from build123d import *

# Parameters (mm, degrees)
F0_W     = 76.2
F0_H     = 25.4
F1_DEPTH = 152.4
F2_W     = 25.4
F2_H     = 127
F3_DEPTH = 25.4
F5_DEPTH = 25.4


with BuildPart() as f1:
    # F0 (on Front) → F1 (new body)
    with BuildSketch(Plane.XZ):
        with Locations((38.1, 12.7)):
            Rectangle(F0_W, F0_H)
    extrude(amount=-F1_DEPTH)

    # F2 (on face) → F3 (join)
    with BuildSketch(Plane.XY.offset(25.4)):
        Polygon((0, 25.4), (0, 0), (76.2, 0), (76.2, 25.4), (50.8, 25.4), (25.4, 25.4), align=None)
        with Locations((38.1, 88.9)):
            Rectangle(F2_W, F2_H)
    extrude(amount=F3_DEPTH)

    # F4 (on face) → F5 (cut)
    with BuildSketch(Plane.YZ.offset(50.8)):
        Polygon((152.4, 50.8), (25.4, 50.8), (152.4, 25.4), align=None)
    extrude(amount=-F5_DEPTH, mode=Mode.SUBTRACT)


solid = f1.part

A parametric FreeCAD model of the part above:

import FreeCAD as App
import Part
import Sketcher

V = App.Vector
Q = App.Units.Quantity


def add_polygon(sketch, points):
    """Adds a closed chain of lines whose ends are joined by coincident constraints."""
    first, n = sketch.GeometryCount, len(points)
    for a, b in zip(points, points[1:] + points[:1]):
        sketch.addGeometry(Part.LineSegment(App.Vector(*a, 0), App.Vector(*b, 0)), False)
    for i in range(n):
        sketch.addConstraint(Sketcher.Constraint("Coincident", first + i, 2, first + (i + 1) % n, 1))

doc = App.newDocument("Part")
params = doc.addObject("Spreadsheet::Sheet", "Params")
for row, (alias, value) in enumerate([
    ("sketch1_width", "3 in"),
    ("sketch1_height", "1 in"),
    ("pad1_length", "6 in"),
    ("sketch2_width", "3 in"),
    ("sketch2_height", "5 in"),
    ("pad2_length", "1 in"),
    ("sketch3_width", "5 in"),
    ("sketch3_height", "1 in"),
    ("pocket1_length", "1 in"),
], start=1):
    params.set(f"A{row}", alias)
    params.set(f"B{row}", "=" + value)
    params.setAlias(f"B{row}", alias)

body = doc.addObject("PartDesign::Body", "Body")

# Sketch on XZ plane
sketch1 = body.newObject("Sketcher::SketchObject", "Sketch")
sketch1.AttachmentSupport = (doc.getObject("XZ_Plane"), [""])
sketch1.MapMode = "FlatFace"
add_polygon(sketch1, [(0, 25.4), (0, 0), (76.2, 0), (76.2, 25.4)])  # lines 0-3
sketch1.addConstraint([
    Sketcher.Constraint("Vertical", 0),
    Sketcher.Constraint("Horizontal", 1),
    Sketcher.Constraint("Vertical", 2),
    Sketcher.Constraint("Horizontal", 3),
    Sketcher.Constraint("Coincident", 0, 2, -1, 1),
    Sketcher.Constraint("DistanceX", 1, 1, 1, 2, Q("3 in")),
    Sketcher.Constraint("DistanceY", 0, 2, 0, 1, Q("1 in")),
])
sketch1.setExpression("Constraints[9]", "Params.sketch1_width")
sketch1.setExpression("Constraints[10]", "Params.sketch1_height")
pad1 = body.newObject("PartDesign::Pad", "Pad")
pad1.Profile = sketch1
pad1.setExpression("Length", "Params.pad1_length")
pad1.Reversed = True

# Sketch on XY plane
sketch2 = body.newObject("Sketcher::SketchObject", "Sketch001")
sketch2.AttachmentSupport = (doc.getObject("XY_Plane"), [""])
sketch2.MapMode = "FlatFace"
sketch2.AttachmentOffset = App.Placement(V(0, 0, 1 * 25.4), App.Rotation())
add_polygon(sketch2, [(0, 25.4), (0, 0), (76.2, 0), (76.2, 25.4), (50.8, 25.4), (50.8, 152.4), (25.4, 152.4), (25.4, 25.4)])  # lines 0-7
sketch2.addConstraint([
    Sketcher.Constraint("Vertical", 0),
    Sketcher.Constraint("Horizontal", 1),
    Sketcher.Constraint("Vertical", 2),
    Sketcher.Constraint("Horizontal", 3),
    Sketcher.Constraint("Vertical", 4),
    Sketcher.Constraint("Horizontal", 5),
    Sketcher.Constraint("Vertical", 6),
    Sketcher.Constraint("Horizontal", 7),
    Sketcher.Constraint("Coincident", 0, 2, -1, 1),
    Sketcher.Constraint("Horizontal", 3, 2, 6, 2),
    Sketcher.Constraint("Equal", 3, 5),
    Sketcher.Constraint("Equal", 5, 7),
    Sketcher.Constraint("Equal", 7, 0),
    Sketcher.Constraint("DistanceX", 1, 1, 1, 2, Q("3 in")),
    Sketcher.Constraint("DistanceY", 4, 1, 4, 2, Q("5 in")),
])
sketch2.setExpression("Constraints[21]", "Params.sketch2_width")
sketch2.setExpression("Constraints[22]", "Params.sketch2_height")
pad2 = body.newObject("PartDesign::Pad", "Pad001")
pad2.Profile = sketch2
pad2.setExpression("Length", "Params.pad2_length")

# Sketch on YZ plane
sketch3 = body.newObject("Sketcher::SketchObject", "Sketch002")
sketch3.AttachmentSupport = (doc.getObject("YZ_Plane"), [""])
sketch3.MapMode = "FlatFace"
sketch3.AttachmentOffset = App.Placement(V(0, 0, 2 * 25.4), App.Rotation())
add_polygon(sketch3, [(152.4, 50.8), (25.4, 50.8), (152.4, 25.4)])  # lines 0-2
sketch3.addConstraint([
    Sketcher.Constraint("Horizontal", 0),
    Sketcher.Constraint("Vertical", 2),
    Sketcher.Constraint("DistanceX", 0, 2, 0, 1, Q("5 in")),
    Sketcher.Constraint("DistanceY", 2, 1, 2, 2, Q("1 in")),
    Sketcher.Constraint("DistanceX", -1, 1, 0, 2, Q("1 in")),
    Sketcher.Constraint("DistanceY", -1, 1, 0, 2, Q("2 in")),
])
sketch3.setExpression("Constraints[5]", "Params.sketch3_width")
sketch3.setExpression("Constraints[6]", "Params.sketch3_height")
pocket1 = body.newObject("PartDesign::Pocket", "Pocket")
pocket1.Profile = sketch3
pocket1.setExpression("Length", "Params.pocket1_length")

doc.recompute()
